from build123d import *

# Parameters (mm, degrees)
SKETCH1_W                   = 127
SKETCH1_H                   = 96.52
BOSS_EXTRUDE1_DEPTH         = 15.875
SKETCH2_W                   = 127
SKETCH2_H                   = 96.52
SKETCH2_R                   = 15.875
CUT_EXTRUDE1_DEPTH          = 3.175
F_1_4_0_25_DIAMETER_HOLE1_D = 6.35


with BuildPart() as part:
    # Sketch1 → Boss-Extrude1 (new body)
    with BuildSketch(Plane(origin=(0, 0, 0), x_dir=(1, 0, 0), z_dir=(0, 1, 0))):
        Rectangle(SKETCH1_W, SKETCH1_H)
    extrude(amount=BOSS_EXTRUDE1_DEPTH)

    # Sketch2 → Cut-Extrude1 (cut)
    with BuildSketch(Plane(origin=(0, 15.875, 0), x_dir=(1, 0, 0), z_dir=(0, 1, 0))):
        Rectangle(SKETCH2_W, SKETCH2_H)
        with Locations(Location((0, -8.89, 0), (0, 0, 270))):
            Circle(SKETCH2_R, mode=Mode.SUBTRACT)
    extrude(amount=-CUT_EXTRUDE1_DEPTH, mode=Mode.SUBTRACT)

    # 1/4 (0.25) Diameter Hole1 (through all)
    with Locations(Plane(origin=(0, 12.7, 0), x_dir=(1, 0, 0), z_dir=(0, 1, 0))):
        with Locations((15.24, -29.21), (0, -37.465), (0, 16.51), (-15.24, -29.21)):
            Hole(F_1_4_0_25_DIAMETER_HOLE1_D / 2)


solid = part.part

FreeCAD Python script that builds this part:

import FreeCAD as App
import Part
import Sketcher
from FreeCAD import Vector
Q = App.Units.Quantity

doc = App.newDocument("Part")
body = doc.addObject("PartDesign::Body", "Body")

# Sketch on XZ plane
sketch1 = body.newObject("Sketcher::SketchObject", "Sketch")
sketch1.AttachmentSupport = (doc.getObject("XZ_Plane"), [""])
sketch1.MapMode = "FlatFace"
sketch1.addGeometry(Part.LineSegment(Vector(-63.5, -48.26, 0), Vector(-63.5, 48.26, 0)), False)
sketch1.addGeometry(Part.LineSegment(Vector(-63.5, 48.26, 0), Vector(63.5, 48.26, 0)), False)
sketch1.addGeometry(Part.LineSegment(Vector(63.5, 48.26, 0), Vector(63.5, -48.26, 0)), False)
sketch1.addGeometry(Part.LineSegment(Vector(63.5, -48.26, 0), Vector(-63.5, -48.26, 0)), False)
sketch1.addConstraint(Sketcher.Constraint("Coincident", 0, 2, 1, 1))
sketch1.addConstraint(Sketcher.Constraint("Coincident", 1, 2, 2, 1))
sketch1.addConstraint(Sketcher.Constraint("Coincident", 2, 2, 3, 1))
sketch1.addConstraint(Sketcher.Constraint("Coincident", 3, 2, 0, 1))
sketch1.addConstraint(Sketcher.Constraint("Vertical", 0))
sketch1.addConstraint(Sketcher.Constraint("Horizontal", 1))
sketch1.addConstraint(Sketcher.Constraint("Vertical", 2))
sketch1.addConstraint(Sketcher.Constraint("Horizontal", 3))
sketch1.addConstraint(Sketcher.Constraint("Symmetric", 0, 2, 2, 2, -1, 1))
sketch1.addConstraint(Sketcher.Constraint("DistanceX", 1, 1, 1, 2, Q("5 in")))
sketch1.addConstraint(Sketcher.Constraint("DistanceY", 0, 1, 0, 2, Q("3.8 in")))
pad1 = body.newObject("PartDesign::Pad", "Pad")
pad1.Profile = sketch1
pad1.Length = Q("0.625 in")
pad1.Reversed = True

# Sketch on XZ plane
sketch2 = body.newObject("Sketcher::SketchObject", "Sketch001")
sketch2.AttachmentSupport = (doc.getObject("XZ_Plane"), [""])
sketch2.MapMode = "FlatFace"
sketch2.AttachmentOffset = App.Placement(Vector(0, 0, -0.625 * 25.4), App.Rotation())
sketch2.addGeometry(Part.LineSegment(Vector(-63.5, -48.26, 0), Vector(-63.5, 48.26, 0)), False)
sketch2.addGeometry(Part.LineSegment(Vector(-63.5, 48.26, 0), Vector(63.5, 48.26, 0)), False)
sketch2.addGeometry(Part.LineSegment(Vector(63.5, 48.26, 0), Vector(63.5, -48.26, 0)), False)
sketch2.addGeometry(Part.LineSegment(Vector(63.5, -48.26, 0), Vector(-63.5, -48.26, 0)), False)
sketch2.addGeometry(Part.Circle(Vector(0, 8.89, 0), Vector(0, 0, 1), 15.875), False)
sketch2.addConstraint(Sketcher.Constraint("Coincident", 0, 2, 1, 1))
sketch2.addConstraint(Sketcher.Constraint("Coincident", 1, 2, 2, 1))
sketch2.addConstraint(Sketcher.Constraint("Coincident", 2, 2, 3, 1))
sketch2.addConstraint(Sketcher.Constraint("Coincident", 3, 2, 0, 1))
sketch2.addConstraint(Sketcher.Constraint("Vertical", 0))
sketch2.addConstraint(Sketcher.Constraint("Horizontal", 1))
sketch2.addConstraint(Sketcher.Constraint("Vertical", 2))
sketch2.addConstraint(Sketcher.Constraint("Horizontal", 3))
sketch2.addConstraint(Sketcher.Constraint("Symmetric", 0, 2, 2, 2, -1, 1))
sketch2.addConstraint(Sketcher.Constraint("PointOnObject", 4, 3, -2))
sketch2.addConstraint(Sketcher.Constraint("Diameter", 4, Q("1.25 in")))
sketch2.addConstraint(Sketcher.Constraint("DistanceX", 1, 1, 1, 2, Q("5 in")))
sketch2.addConstraint(Sketcher.Constraint("DistanceY", 0, 1, 0, 2, Q("3.8 in")))
sketch2.addConstraint(Sketcher.Constraint("DistanceY", -1, 1, 4, 3, Q("0.35 in")))
pocket1 = body.newObject("PartDesign::Pocket", "Pocket")
pocket1.Profile = sketch2
pocket1.Length = Q("0.125 in")
pocket1.Reversed = True

# Sketch on XZ plane
sketch3 = body.newObject("Sketcher::SketchObject", "Sketch002")
sketch3.AttachmentSupport = (doc.getObject("XZ_Plane"), [""])
sketch3.MapMode = "FlatFace"
sketch3.AttachmentOffset = App.Placement(Vector(0, 0, -0.5 * 25.4), App.Rotation())
sketch3.addGeometry(Part.Circle(Vector(15.24, 29.21, 0), Vector(0, 0, 1), 3.175), False)
sketch3.addGeometry(Part.Circle(Vector(0, 37.465, 0), Vector(0, 0, 1), 3.175), False)
sketch3.addGeometry(Part.Circle(Vector(0, -16.51, 0), Vector(0, 0, 1), 3.175), False)
sketch3.addGeometry(Part.Circle(Vector(-15.24, 29.21, 0), Vector(0, 0, 1), 3.175), False)
sketch3.addConstraint(Sketcher.Constraint("Equal", 0, 1))
sketch3.addConstraint(Sketcher.Constraint("Equal", 1, 2))
sketch3.addConstraint(Sketcher.Constraint("Equal", 2, 3))
sketch3.addConstraint(Sketcher.Constraint("Symmetric", 0, 3, 3, 3, -2))
sketch3.addConstraint(Sketcher.Constraint("PointOnObject", 1, 3, -2))
sketch3.addConstraint(Sketcher.Constraint("PointOnObject", 2, 3, -2))
sketch3.addConstraint(Sketcher.Constraint("Diameter", 0, Q("0.25 in")))
sketch3.addConstraint(Sketcher.Constraint("DistanceX", -1, 1, 0, 3, Q("0.6 in")))
sketch3.addConstraint(Sketcher.Constraint("DistanceY", 2, 3, 0, 3, Q("1.8 in")))
sketch3.addConstraint(Sketcher.Constraint("DistanceY", -1, 1, 0, 3, Q("1.15 in")))
sketch3.addConstraint(Sketcher.Constraint("DistanceY", -1, 1, 1, 3, Q("1.475 in")))
doc.recompute()
hole = body.newObject("PartDesign::Hole", "Hole")
hole.Profile = sketch3
hole.ThreadType = "None"
hole.Diameter = Q("0.25 in")
hole.DepthType = "ThroughAll"
hole.Reversed = True

doc.recompute()
